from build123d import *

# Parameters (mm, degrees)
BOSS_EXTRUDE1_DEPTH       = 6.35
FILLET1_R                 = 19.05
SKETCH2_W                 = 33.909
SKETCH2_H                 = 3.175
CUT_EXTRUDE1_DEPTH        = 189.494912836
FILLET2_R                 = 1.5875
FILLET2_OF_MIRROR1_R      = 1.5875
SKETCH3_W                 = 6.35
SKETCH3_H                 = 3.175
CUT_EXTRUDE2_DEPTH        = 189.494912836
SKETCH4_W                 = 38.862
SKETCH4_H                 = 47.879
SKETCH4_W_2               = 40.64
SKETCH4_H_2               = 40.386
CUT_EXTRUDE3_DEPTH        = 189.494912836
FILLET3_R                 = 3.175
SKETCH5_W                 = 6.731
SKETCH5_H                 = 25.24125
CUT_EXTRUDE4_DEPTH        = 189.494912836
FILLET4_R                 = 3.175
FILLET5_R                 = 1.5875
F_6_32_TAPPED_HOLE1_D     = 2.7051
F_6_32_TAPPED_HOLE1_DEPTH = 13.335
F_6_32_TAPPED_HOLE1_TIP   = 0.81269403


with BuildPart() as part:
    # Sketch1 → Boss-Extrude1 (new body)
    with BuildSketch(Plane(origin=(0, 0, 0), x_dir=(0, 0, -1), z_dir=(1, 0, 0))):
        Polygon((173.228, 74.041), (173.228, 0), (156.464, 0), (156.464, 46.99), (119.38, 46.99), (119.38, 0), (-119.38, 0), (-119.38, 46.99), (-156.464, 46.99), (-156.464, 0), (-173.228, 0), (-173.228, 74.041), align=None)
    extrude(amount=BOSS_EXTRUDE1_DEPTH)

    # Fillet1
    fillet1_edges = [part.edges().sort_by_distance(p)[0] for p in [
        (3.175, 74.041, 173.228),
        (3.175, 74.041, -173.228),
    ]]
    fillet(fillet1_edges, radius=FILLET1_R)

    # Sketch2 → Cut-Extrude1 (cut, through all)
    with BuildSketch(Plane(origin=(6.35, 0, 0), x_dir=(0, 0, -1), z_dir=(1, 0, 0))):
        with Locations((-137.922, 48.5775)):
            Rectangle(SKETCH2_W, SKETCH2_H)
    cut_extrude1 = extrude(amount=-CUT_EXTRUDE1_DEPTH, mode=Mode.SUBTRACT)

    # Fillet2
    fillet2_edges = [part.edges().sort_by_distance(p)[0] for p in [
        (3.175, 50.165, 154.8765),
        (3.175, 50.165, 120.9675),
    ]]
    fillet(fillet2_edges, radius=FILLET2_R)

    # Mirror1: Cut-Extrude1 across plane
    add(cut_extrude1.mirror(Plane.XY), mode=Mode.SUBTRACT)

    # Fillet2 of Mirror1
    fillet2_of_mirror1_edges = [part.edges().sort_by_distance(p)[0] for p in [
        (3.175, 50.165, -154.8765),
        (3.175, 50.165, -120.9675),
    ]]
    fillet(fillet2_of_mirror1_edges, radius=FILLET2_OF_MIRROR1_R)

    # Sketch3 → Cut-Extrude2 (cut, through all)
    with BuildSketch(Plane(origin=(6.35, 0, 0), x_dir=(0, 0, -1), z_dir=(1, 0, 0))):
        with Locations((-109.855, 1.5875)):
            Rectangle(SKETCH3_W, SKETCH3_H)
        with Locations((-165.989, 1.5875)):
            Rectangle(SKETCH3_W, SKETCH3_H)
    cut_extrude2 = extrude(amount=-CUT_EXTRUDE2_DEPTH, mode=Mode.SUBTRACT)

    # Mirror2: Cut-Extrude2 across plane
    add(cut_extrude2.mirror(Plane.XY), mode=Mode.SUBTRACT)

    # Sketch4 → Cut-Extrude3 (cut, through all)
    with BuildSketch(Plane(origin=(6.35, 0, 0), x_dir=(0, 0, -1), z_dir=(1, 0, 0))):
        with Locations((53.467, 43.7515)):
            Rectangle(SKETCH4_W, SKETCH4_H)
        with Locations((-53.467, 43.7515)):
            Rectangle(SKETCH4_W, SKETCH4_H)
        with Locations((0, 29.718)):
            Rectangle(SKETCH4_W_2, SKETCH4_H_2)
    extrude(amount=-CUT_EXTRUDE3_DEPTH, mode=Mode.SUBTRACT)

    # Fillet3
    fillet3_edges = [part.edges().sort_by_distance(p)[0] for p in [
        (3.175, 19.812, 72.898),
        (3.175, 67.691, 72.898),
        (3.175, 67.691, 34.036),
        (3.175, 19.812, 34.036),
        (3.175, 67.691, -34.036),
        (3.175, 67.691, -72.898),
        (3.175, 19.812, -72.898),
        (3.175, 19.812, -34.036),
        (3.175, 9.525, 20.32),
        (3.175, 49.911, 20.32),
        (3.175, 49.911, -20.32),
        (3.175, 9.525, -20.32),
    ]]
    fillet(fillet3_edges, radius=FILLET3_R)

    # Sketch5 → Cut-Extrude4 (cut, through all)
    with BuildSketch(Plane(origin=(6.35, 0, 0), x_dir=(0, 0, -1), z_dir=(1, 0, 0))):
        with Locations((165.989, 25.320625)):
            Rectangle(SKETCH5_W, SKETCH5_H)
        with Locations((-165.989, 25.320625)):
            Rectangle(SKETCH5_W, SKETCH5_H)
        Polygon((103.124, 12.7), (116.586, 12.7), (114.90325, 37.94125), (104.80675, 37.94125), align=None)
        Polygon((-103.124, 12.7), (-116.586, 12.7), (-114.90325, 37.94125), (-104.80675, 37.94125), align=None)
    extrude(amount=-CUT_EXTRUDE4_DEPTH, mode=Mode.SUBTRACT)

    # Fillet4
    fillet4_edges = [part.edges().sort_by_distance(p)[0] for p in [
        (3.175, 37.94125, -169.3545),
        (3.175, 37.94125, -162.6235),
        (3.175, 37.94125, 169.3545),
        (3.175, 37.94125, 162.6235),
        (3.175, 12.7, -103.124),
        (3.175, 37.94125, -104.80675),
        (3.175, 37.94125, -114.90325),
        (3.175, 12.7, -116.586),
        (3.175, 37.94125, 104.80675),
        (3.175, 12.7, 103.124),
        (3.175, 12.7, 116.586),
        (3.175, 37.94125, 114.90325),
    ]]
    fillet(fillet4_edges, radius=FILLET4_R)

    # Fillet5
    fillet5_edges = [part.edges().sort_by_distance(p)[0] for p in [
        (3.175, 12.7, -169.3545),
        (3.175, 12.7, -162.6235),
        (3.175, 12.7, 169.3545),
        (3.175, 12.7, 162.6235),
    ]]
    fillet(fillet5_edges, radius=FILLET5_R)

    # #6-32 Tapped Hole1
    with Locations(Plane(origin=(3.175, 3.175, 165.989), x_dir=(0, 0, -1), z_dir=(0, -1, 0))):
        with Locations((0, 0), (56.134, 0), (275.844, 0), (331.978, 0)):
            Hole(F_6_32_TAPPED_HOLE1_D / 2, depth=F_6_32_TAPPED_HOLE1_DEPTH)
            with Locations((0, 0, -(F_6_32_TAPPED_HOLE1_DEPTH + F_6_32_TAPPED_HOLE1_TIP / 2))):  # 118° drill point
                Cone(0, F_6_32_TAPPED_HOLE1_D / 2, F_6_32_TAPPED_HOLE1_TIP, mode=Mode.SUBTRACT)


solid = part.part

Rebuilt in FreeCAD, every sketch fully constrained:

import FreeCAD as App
import Part
import Sketcher

V = App.Vector
Q = App.Units.Quantity


def edges_at(feature, points):
    """Names of the edges that pass closest to the given points."""
    edges = feature.Shape.Edges
    near = lambda p: min(range(len(edges)), key=lambda i: edges[i].distToShape(Part.Vertex(*p))[0])
    return sorted({f"Edge{near(p) + 1}" for p in points})

doc = App.newDocument("Part")
body = doc.addObject("PartDesign::Body", "Body")

# Sketch on YZ plane
sketch1 = doc.addObject("Sketcher::SketchObject", "Sketch")
body.addObject(sketch1)
sketch1.AttachmentSupport = (doc.YZ_Plane, [""])
sketch1.MapMode = "FlatFace"
sketch1.addGeometry([
    Part.LineSegment(V(0, -173, 0), V(74, -173, 0)),  # 0
    Part.LineSegment(V(74, -173, 0), V(74, 173, 0)),  # 1
    Part.LineSegment(V(74, 173, 0), V(0, 173, 0)),  # 2
    Part.LineSegment(V(0, 173, 0), V(0, 156, 0)),  # 3
    Part.LineSegment(V(0, 156, 0), V(47, 156, 0)),  # 4
    Part.LineSegment(V(47, 156, 0), V(47, 119, 0)),  # 5
    Part.LineSegment(V(47, 119, 0), V(0, 119, 0)),  # 6
    Part.LineSegment(V(0, 119, 0), V(0, -119, 0)),  # 7
    Part.LineSegment(V(0, -119, 0), V(47, -119, 0)),  # 8
    Part.LineSegment(V(47, -119, 0), V(47, -156, 0)),  # 9
    Part.LineSegment(V(47, -156, 0), V(0, -156, 0)),  # 10
    Part.LineSegment(V(0, -156, 0), V(0, -173, 0)),  # 11
], False)
sketch1.addConstraint([
    Sketcher.Constraint("Coincident", 0, 2, 1, 1),
    Sketcher.Constraint("Coincident", 1, 2, 2, 1),
    Sketcher.Constraint("Coincident", 2, 2, 3, 1),
    Sketcher.Constraint("Coincident", 3, 2, 4, 1),
    Sketcher.Constraint("Coincident", 4, 2, 5, 1),
    Sketcher.Constraint("Coincident", 5, 2, 6, 1),
    Sketcher.Constraint("Coincident", 6, 2, 7, 1),
    Sketcher.Constraint("Coincident", 7, 2, 8, 1),
    Sketcher.Constraint("Coincident", 8, 2, 9, 1),
    Sketcher.Constraint("Coincident", 9, 2, 10, 1),
    Sketcher.Constraint("Coincident", 10, 2, 11, 1),
    Sketcher.Constraint("Coincident", 11, 2, 0, 1),
    Sketcher.Constraint("Horizontal", 0),
    Sketcher.Constraint("Vertical", 1),
    Sketcher.Constraint("Horizontal", 2),
    Sketcher.Constraint("Vertical", 3),
    Sketcher.Constraint("Horizontal", 4),
    Sketcher.Constraint("Vertical", 5),
    Sketcher.Constraint("Horizontal", 6),
    Sketcher.Constraint("Vertical", 7),
    Sketcher.Constraint("Horizontal", 8),
    Sketcher.Constraint("Vertical", 9),
    Sketcher.Constraint("Horizontal", 10),
    Sketcher.Constraint("Vertical", 11),
    Sketcher.Constraint("Symmetric", 6, 2, 7, 2, -1, 1),
    Sketcher.Constraint("Symmetric", 3, 2, 10, 2, -1, 1),
    Sketcher.Constraint("Symmetric", 2, 2, 11, 2, -1),
    Sketcher.Constraint("Vertical", 5, 2, 8, 2),
    Sketcher.Constraint("DistanceY", 7, 2, 7, 1, Q("9.4 in")),
    Sketcher.Constraint("DistanceX", 4, 1, 4, 2, Q("1.85 in")),
    Sketcher.Constraint("DistanceY", 1, 1, 1, 2, Q("13.64 in")),
    Sketcher.Constraint("DistanceY", 3, 2, 3, 1, Q("0.66 in")),
    Sketcher.Constraint("DistanceX", 0, 1, 0, 2, Q("2.915 in")),
])
pad1 = doc.addObject("PartDesign::Pad", "Pad")
body.addObject(pad1)
pad1.Profile = sketch1
pad1.Length = Q("0.25 in")
doc.recompute()

fillet = doc.addObject("PartDesign::Fillet", "Fillet")
body.addObject(fillet)
fillet.Base = (pad1, edges_at(pad1, [(3.175, 74.041, 173.228), (3.175, 74.041, -173.228)]))
fillet.Radius = Q("0.75 in")

# Sketch on YZ plane
sketch2 = doc.addObject("Sketcher::SketchObject", "Sketch001")
body.addObject(sketch2)
sketch2.AttachmentSupport = (doc.YZ_Plane, [""])
sketch2.MapMode = "FlatFace"
sketch2.AttachmentOffset = App.Placement(V(0, 0, 0.25 * 25.4), App.Rotation())
sketch2.addGeometry([
    Part.LineSegment(V(50.2, 154.9, 0), V(47, 154.9, 0)),
    Part.LineSegment(V(47, 154.9, 0), V(47, 121, 0)),
    Part.LineSegment(V(47, 121, 0), V(50.2, 121, 0)),
    Part.LineSegment(V(50.2, 121, 0), V(50.2, 154.9, 0)),
], False)
sketch2.addConstraint([
    Sketcher.Constraint("Coincident", 0, 2, 1, 1),
    Sketcher.Constraint("Coincident", 1, 2, 2, 1),
    Sketcher.Constraint("Coincident", 2, 2, 3, 1),
    Sketcher.Constraint("Coincident", 3, 2, 0, 1),
    Sketcher.Constraint("Horizontal", 0),
    Sketcher.Constraint("Vertical", 1),
    Sketcher.Constraint("Horizontal", 2),
    Sketcher.Constraint("Vertical", 3),
    Sketcher.Constraint("DistanceX", 0, 2, 0, 1, Q("0.125 in")),
    Sketcher.Constraint("DistanceY", 1, 2, 1, 1, Q("1.335 in")),
    Sketcher.Constraint("DistanceX", -1, 1, 0, 2, Q("1.85 in")),
    Sketcher.Constraint("DistanceY", -1, 1, 0, 2, Q("6.0975 in")),
])
pocket1 = doc.addObject("PartDesign::Pocket", "Pocket")
body.addObject(pocket1)
pocket1.Profile = sketch2
pocket1.Type = "ThroughAll"
doc.recompute()

fillet2 = doc.addObject("PartDesign::Fillet", "Fillet001")
body.addObject(fillet2)
fillet2.Base = (pocket1, edges_at(pocket1, [(3.175, 50.165, 154.876), (3.175, 50.165, 120.968)]))
fillet2.Radius = Q("0.0625 in")
doc.recompute()

mirrored = doc.addObject("PartDesign::Mirrored", "Mirrored")
body.addObject(mirrored)
mirrored.Originals = [pocket1]
mirrored.MirrorPlane = (doc.XY_Plane, [""])
body.Tip = mirrored
doc.recompute()

fillet3 = doc.addObject("PartDesign::Fillet", "Fillet002")
body.addObject(fillet3)
fillet3.Base = (mirrored, edges_at(mirrored, [(3.175, 50.165, -154.876), (3.175, 50.165, -120.968)]))
fillet3.Radius = Q("0.0625 in")

# Sketch on YZ plane
sketch3 = doc.addObject("Sketcher::SketchObject", "Sketch002")
body.addObject(sketch3)
sketch3.AttachmentSupport = (doc.YZ_Plane, [""])
sketch3.MapMode = "FlatFace"
sketch3.AttachmentOffset = App.Placement(V(0, 0, 0.25 * 25.4), App.Rotation())
sketch3.addGeometry([
    Part.LineSegment(V(3.2, 113, 0), V(0, 113, 0)),  # 0
    Part.LineSegment(V(0, 113, 0), V(0, 106.7, 0)),  # 1
    Part.LineSegment(V(0, 106.7, 0), V(3.2, 106.7, 0)),  # 2
    Part.LineSegment(V(3.2, 106.7, 0), V(3.2, 113, 0)),  # 3
    Part.LineSegment(V(3.2, 169.2, 0), V(0, 169.2, 0)),  # 4
    Part.LineSegment(V(0, 169.2, 0), V(0, 162.8, 0)),  # 5
    Part.LineSegment(V(0, 162.8, 0), V(3.2, 162.8, 0)),  # 6
    Part.LineSegment(V(3.2, 162.8, 0), V(3.2, 169.2, 0)),  # 7
], False)
sketch3.addConstraint([
    Sketcher.Constraint("Coincident", 0, 2, 1, 1),
    Sketcher.Constraint("Coincident", 1, 2, 2, 1),
    Sketcher.Constraint("Coincident", 2, 2, 3, 1),
    Sketcher.Constraint("Coincident", 3, 2, 0, 1),
    Sketcher.Constraint("Coincident", 4, 2, 5, 1),
    Sketcher.Constraint("Coincident", 5, 2, 6, 1),
    Sketcher.Constraint("Coincident", 6, 2, 7, 1),
    Sketcher.Constraint("Coincident", 7, 2, 4, 1),
    Sketcher.Constraint("Horizontal", 0),
    Sketcher.Constraint("Vertical", 1),
    Sketcher.Constraint("Horizontal", 2),
    Sketcher.Constraint("Vertical", 3),
    Sketcher.Constraint("Horizontal", 4),
    Sketcher.Constraint("Vertical", 5),
    Sketcher.Constraint("Horizontal", 6),
    Sketcher.Constraint("Vertical", 7),
    Sketcher.Constraint("PointOnObject", 0, 2, -2),
    Sketcher.Constraint("PointOnObject", 4, 2, -2),
    Sketcher.Constraint("Vertical", 3, 2, 6, 2),
    Sketcher.Constraint("Equal", 3, 5),
    Sketcher.Constraint("DistanceY", 1, 2, 1, 1, Q("0.25 in")),
    Sketcher.Constraint("DistanceY", -1, 1, 1, 2, Q("4.2 in")),
    Sketcher.Constraint("DistanceX", 0, 2, 0, 1, Q("0.125 in")),
    Sketcher.Constraint("DistanceY", -1, 1, 4, 2, Q("6.66 in")),
])
pocket2 = doc.addObject("PartDesign::Pocket", "Pocket001")
body.addObject(pocket2)
pocket2.Profile = sketch3
pocket2.Type = "ThroughAll"
doc.recompute()

mirrored2 = doc.addObject("PartDesign::Mirrored", "Mirrored001")
body.addObject(mirrored2)
mirrored2.Originals = [pocket2]
mirrored2.MirrorPlane = (doc.XY_Plane, [""])
body.Tip = mirrored2

# Sketch on YZ plane
sketch4 = doc.addObject("Sketcher::SketchObject", "Sketch003")
body.addObject(sketch4)
sketch4.AttachmentSupport = (doc.YZ_Plane, [""])
sketch4.MapMode = "FlatFace"
sketch4.AttachmentOffset = App.Placement(V(0, 0, 0.25 * 25.4), App.Rotation())
sketch4.addGeometry([
    Part.LineSegment(V(68, -34, 0), V(20, -34, 0)),  # 0
    Part.LineSegment(V(20, -34, 0), V(20, -73, 0)),  # 1
    Part.LineSegment(V(20, -73, 0), V(68, -73, 0)),  # 2
    Part.LineSegment(V(68, -73, 0), V(68, -34, 0)),  # 3
    Part.LineSegment(V(68, 73, 0), V(20, 73, 0)),  # 4
    Part.LineSegment(V(20, 73, 0), V(20, 34, 0)),  # 5
    Part.LineSegment(V(20, 34, 0), V(68, 34, 0)),  # 6
    Part.LineSegment(V(68, 34, 0), V(68, 73, 0)),  # 7
    Part.LineSegment(V(50, 20, 0), V(10, 20, 0)),  # 8
    Part.LineSegment(V(10, 20, 0), V(10, -20, 0)),  # 9
    Part.LineSegment(V(10, -20, 0), V(50, -20, 0)),  # 10
    Part.LineSegment(V(50, -20, 0), V(50, 20, 0)),  # 11
], False)
sketch4.addConstraint([
    Sketcher.Constraint("Coincident", 0, 2, 1, 1),
    Sketcher.Constraint("Coincident", 1, 2, 2, 1),
    Sketcher.Constraint("Coincident", 2, 2, 3, 1),
    Sketcher.Constraint("Coincident", 3, 2, 0, 1),
    Sketcher.Constraint("Coincident", 4, 2, 5, 1),
    Sketcher.Constraint("Coincident", 5, 2, 6, 1),
    Sketcher.Constraint("Coincident", 6, 2, 7, 1),
    Sketcher.Constraint("Coincident", 7, 2, 4, 1),
    Sketcher.Constraint("Coincident", 8, 2, 9, 1),
    Sketcher.Constraint("Coincident", 9, 2, 10, 1),
    Sketcher.Constraint("Coincident", 10, 2, 11, 1),
    Sketcher.Constraint("Coincident", 11, 2, 8, 1),
    Sketcher.Constraint("Horizontal", 0),
    Sketcher.Constraint("Vertical", 1),
    Sketcher.Constraint("Horizontal", 2),
    Sketcher.Constraint("Vertical", 3),
    Sketcher.Constraint("Horizontal", 4),
    Sketcher.Constraint("Vertical", 5),
    Sketcher.Constraint("Horizontal", 6),
    Sketcher.Constraint("Vertical", 7),
    Sketcher.Constraint("Horizontal", 8),
    Sketcher.Constraint("Vertical", 9),
    Sketcher.Constraint("Horizontal", 10),
    Sketcher.Constraint("Vertical", 11),
    Sketcher.Constraint("Symmetric", 1, 2, 4, 2, -1),
    Sketcher.Constraint("Symmetric", 3, 2, 6, 2, -1),
    Sketcher.Constraint("DistanceY", 9, 2, 9, 1, Q("1.6 in")),
    Sketcher.Constraint("DistanceX", 8, 2, 8, 1, Q("1.59 in")),
    Sketcher.Constraint("DistanceY", 1, 2, 1, 1, Q("1.53 in")),
    Sketcher.Constraint("DistanceY", -1, 1, 8, 2, Q("0.8 in")),
    Sketcher.Constraint("DistanceX", 10, 2, 3, 2, Q("0.7 in")),
    Sketcher.Constraint("DistanceX", 0, 2, 0, 1, Q("1.885 in")),
    Sketcher.Constraint("DistanceX", -1, 1, 0, 2, Q("0.78 in")),
    Sketcher.Constraint("DistanceY", 0, 2, -1, 1, Q("1.34 in")),
])
pocket3 = doc.addObject("PartDesign::Pocket", "Pocket002")
body.addObject(pocket3)
pocket3.Profile = sketch4
pocket3.Type = "ThroughAll"
doc.recompute()

fillet4 = doc.addObject("PartDesign::Fillet", "Fillet003")
body.addObject(fillet4)
fillet4.Base = (pocket3, edges_at(pocket3, [
    (3.175, 19.812, 72.898),
    (3.175, 67.691, 72.898),
    (3.175, 67.691, 34.036),
    (3.175, 19.812, 34.036),
    (3.175, 67.691, -34.036),
    (3.175, 67.691, -72.898),
    (3.175, 19.812, -72.898),
    (3.175, 19.812, -34.036),
    (3.175, 9.525, 20.32),
    (3.175, 49.911, 20.32),
    (3.175, 49.911, -20.32),
    (3.175, 9.525, -20.32),
]))
fillet4.Radius = Q("0.125 in")

# Sketch on YZ plane
sketch5 = doc.addObject("Sketcher::SketchObject", "Sketch004")
body.addObject(sketch5)
sketch5.AttachmentSupport = (doc.YZ_Plane, [""])
sketch5.MapMode = "FlatFace"
sketch5.AttachmentOffset = App.Placement(V(0, 0, 0.25 * 25.4), App.Rotation())
sketch5.addGeometry([
    Part.LineSegment(V(38, -163, 0), V(13, -163, 0)),  # 0
    Part.LineSegment(V(13, -163, 0), V(13, -169, 0)),  # 1
    Part.LineSegment(V(13, -169, 0), V(38, -169, 0)),  # 2
    Part.LineSegment(V(38, -169, 0), V(38, -163, 0)),  # 3
    Part.LineSegment(V(38, 169, 0), V(13, 169, 0)),  # 4
    Part.LineSegment(V(13, 169, 0), V(13, 163, 0)),  # 5
    Part.LineSegment(V(13, 163, 0), V(38, 163, 0)),  # 6
    Part.LineSegment(V(38, 163, 0), V(38, 169, 0)),  # 7
    Part.LineSegment(V(13, -103, 0), V(13, -117, 0)),  # 8
    Part.LineSegment(V(13, -117, 0), V(38, -115, 0)),  # 9
    Part.LineSegment(V(38, -115, 0), V(38, -105, 0)),  # 10
    Part.LineSegment(V(38, -105, 0), V(13, -103, 0)),  # 11
    Part.LineSegment(V(13, 117, 0), V(13, 103, 0)),  # 12
    Part.LineSegment(V(13, 103, 0), V(38, 105, 0)),  # 13
    Part.LineSegment(V(38, 105, 0), V(38, 115, 0)),  # 14
    Part.LineSegment(V(38, 115, 0), V(13, 117, 0)),  # 15
], False)
sketch5.addConstraint([
    Sketcher.Constraint("Coincident", 0, 2, 1, 1),
    Sketcher.Constraint("Coincident", 1, 2, 2, 1),
    Sketcher.Constraint("Coincident", 2, 2, 3, 1),
    Sketcher.Constraint("Coincident", 3, 2, 0, 1),
    Sketcher.Constraint("Coincident", 4, 2, 5, 1),
    Sketcher.Constraint("Coincident", 5, 2, 6, 1),
    Sketcher.Constraint("Coincident", 6, 2, 7, 1),
    Sketcher.Constraint("Coincident", 7, 2, 4, 1),
    Sketcher.Constraint("Coincident", 8, 2, 9, 1),
    Sketcher.Constraint("Coincident", 9, 2, 10, 1),
    Sketcher.Constraint("Coincident", 10, 2, 11, 1),
    Sketcher.Constraint("Coincident", 11, 2, 8, 1),
    Sketcher.Constraint("Coincident", 12, 2, 13, 1),
    Sketcher.Constraint("Coincident", 13, 2, 14, 1),
    Sketcher.Constraint("Coincident", 14, 2, 15, 1),
    Sketcher.Constraint("Coincident", 15, 2, 12, 1),
    Sketcher.Constraint("Horizontal", 0),
    Sketcher.Constraint("Vertical", 1),
    Sketcher.Constraint("Horizontal", 2),
    Sketcher.Constraint("Vertical", 3),
    Sketcher.Constraint("Horizontal", 4),
    Sketcher.Constraint("Vertical", 5),
    Sketcher.Constraint("Horizontal", 6),
    Sketcher.Constraint("Vertical", 7),
    Sketcher.Constraint("Vertical", 8),
    Sketcher.Constraint("Vertical", 10),
    Sketcher.Constraint("Vertical", 12),
    Sketcher.Constraint("Vertical", 14),
    Sketcher.Constraint("Symmetric", 1, 2, 4, 2, -1),
    Sketcher.Constraint("Symmetric", 3, 2, 6, 2, -1),
    Sketcher.Constraint("Symmetric", 11, 2, 12, 2, -1),
    Sketcher.Constraint("Symmetric", 10, 2, 13, 2, -1),
    Sketcher.Constraint("Parallel", 9, 13),
    Sketcher.Constraint("Parallel", 11, 15),
    Sketcher.Constraint("Vertical", 5, 2, 8, 2),
    Sketcher.Constraint("Vertical", 7, 2, 9, 2),
    Sketcher.Constraint("Equal", 8, 12),
    Sketcher.Constraint("DistanceY", 8, 2, 8, 1, Q("0.53 in")),
    Sketcher.Constraint("DistanceX", -1, 1, 0, 2, Q("0.5 in")),
    Sketcher.Constraint("DistanceY", 1, 2, 1, 1, Q("0.265 in")),
    Sketcher.Constraint("DistanceY", 8, 2, -1, 1, Q("4.59 in")),
    Sketcher.Constraint("DistanceY", 0, 2, 4, 2, Q("13.07 in")),
    Sketcher.Constraint("DistanceY", 10, 1, 10, 2, Q("0.3975 in")),
    Sketcher.Constraint("DistanceX", 0, 2, 0, 1, 25.24125),
])
pocket4 = doc.addObject("PartDesign::Pocket", "Pocket003")
body.addObject(pocket4)
pocket4.Profile = sketch5
pocket4.Type = "ThroughAll"
doc.recompute()

fillet5 = doc.addObject("PartDesign::Fillet", "Fillet004")
body.addObject(fillet5)
fillet5.Base = (pocket4, edges_at(pocket4, [
    (3.175, 37.941, -169.355),
    (3.175, 37.941, -162.624),
    (3.175, 37.941, 169.355),
    (3.175, 37.941, 162.624),
    (3.175, 12.7, -103.124),
    (3.175, 37.941, -104.807),
    (3.175, 37.941, -114.903),
    (3.175, 12.7, -116.586),
    (3.175, 37.941, 104.807),
    (3.175, 12.7, 103.124),
    (3.175, 12.7, 116.586),
    (3.175, 37.941, 114.903),
]))
fillet5.Radius = Q("0.125 in")
doc.recompute()

fillet6 = doc.addObject("PartDesign::Fillet", "Fillet005")
body.addObject(fillet6)
fillet6.Base = (fillet5, edges_at(fillet5, [
    (3.175, 12.7, -169.355),
    (3.175, 12.7, -162.624),
    (3.175, 12.7, 169.355),
    (3.175, 12.7, 162.624),
]))
fillet6.Radius = Q("0.0625 in")

# Sketch on XZ plane
sketch6 = doc.addObject("Sketcher::SketchObject", "Sketch005")
body.addObject(sketch6)
sketch6.AttachmentSupport = (doc.XZ_Plane, [""])
sketch6.MapMode = "FlatFace"
sketch6.AttachmentOffset = App.Placement(V(0, 0, -0.125 * 25.4), App.Rotation())
sketch6.addGeometry([
    Part.Circle(V(3.2, 166, 0), V(0, 0, 1), 1.4),
    Part.Circle(V(3.2, 109.9, 0), V(0, 0, 1), 1.4),
    Part.Circle(V(3.2, -109.9, 0), V(0, 0, 1), 1.4),
    Part.Circle(V(3.2, -166, 0), V(0, 0, 1), 1.4),
], False)
sketch6.addConstraint([
    Sketcher.Constraint("Equal", 0, 1),
    Sketcher.Constraint("Equal", 1, 2),
    Sketcher.Constraint("Equal", 2, 3),
    Sketcher.Constraint("Symmetric", 1, 3, 2, 3, -1),
    Sketcher.Constraint("Symmetric", 0, 3, 3, 3, -1),
    Sketcher.Constraint("Vertical", 0, 3, 1, 3),
    Sketcher.Constraint("Diameter", 0, Q("0.1065 in")),
    Sketcher.Constraint("DistanceY", 1, 3, 0, 3, Q("2.21 in")),
    Sketcher.Constraint("DistanceY", 2, 3, 1, 3, Q("8.65 in")),
    Sketcher.Constraint("DistanceX", -1, 1, 0, 3, Q("0.125 in")),
])
doc.recompute()
hole = doc.addObject("PartDesign::Hole", "Hole")
body.addObject(hole)
hole.Profile = sketch6
hole.ThreadType = "None"
hole.Diameter = Q("0.1065 in")
hole.DepthType = "Dimension"
hole.Depth = Q("0.525 in")
hole.DrillPoint = "Angled"
hole.DrillPointAngle = 118

doc.recompute()
